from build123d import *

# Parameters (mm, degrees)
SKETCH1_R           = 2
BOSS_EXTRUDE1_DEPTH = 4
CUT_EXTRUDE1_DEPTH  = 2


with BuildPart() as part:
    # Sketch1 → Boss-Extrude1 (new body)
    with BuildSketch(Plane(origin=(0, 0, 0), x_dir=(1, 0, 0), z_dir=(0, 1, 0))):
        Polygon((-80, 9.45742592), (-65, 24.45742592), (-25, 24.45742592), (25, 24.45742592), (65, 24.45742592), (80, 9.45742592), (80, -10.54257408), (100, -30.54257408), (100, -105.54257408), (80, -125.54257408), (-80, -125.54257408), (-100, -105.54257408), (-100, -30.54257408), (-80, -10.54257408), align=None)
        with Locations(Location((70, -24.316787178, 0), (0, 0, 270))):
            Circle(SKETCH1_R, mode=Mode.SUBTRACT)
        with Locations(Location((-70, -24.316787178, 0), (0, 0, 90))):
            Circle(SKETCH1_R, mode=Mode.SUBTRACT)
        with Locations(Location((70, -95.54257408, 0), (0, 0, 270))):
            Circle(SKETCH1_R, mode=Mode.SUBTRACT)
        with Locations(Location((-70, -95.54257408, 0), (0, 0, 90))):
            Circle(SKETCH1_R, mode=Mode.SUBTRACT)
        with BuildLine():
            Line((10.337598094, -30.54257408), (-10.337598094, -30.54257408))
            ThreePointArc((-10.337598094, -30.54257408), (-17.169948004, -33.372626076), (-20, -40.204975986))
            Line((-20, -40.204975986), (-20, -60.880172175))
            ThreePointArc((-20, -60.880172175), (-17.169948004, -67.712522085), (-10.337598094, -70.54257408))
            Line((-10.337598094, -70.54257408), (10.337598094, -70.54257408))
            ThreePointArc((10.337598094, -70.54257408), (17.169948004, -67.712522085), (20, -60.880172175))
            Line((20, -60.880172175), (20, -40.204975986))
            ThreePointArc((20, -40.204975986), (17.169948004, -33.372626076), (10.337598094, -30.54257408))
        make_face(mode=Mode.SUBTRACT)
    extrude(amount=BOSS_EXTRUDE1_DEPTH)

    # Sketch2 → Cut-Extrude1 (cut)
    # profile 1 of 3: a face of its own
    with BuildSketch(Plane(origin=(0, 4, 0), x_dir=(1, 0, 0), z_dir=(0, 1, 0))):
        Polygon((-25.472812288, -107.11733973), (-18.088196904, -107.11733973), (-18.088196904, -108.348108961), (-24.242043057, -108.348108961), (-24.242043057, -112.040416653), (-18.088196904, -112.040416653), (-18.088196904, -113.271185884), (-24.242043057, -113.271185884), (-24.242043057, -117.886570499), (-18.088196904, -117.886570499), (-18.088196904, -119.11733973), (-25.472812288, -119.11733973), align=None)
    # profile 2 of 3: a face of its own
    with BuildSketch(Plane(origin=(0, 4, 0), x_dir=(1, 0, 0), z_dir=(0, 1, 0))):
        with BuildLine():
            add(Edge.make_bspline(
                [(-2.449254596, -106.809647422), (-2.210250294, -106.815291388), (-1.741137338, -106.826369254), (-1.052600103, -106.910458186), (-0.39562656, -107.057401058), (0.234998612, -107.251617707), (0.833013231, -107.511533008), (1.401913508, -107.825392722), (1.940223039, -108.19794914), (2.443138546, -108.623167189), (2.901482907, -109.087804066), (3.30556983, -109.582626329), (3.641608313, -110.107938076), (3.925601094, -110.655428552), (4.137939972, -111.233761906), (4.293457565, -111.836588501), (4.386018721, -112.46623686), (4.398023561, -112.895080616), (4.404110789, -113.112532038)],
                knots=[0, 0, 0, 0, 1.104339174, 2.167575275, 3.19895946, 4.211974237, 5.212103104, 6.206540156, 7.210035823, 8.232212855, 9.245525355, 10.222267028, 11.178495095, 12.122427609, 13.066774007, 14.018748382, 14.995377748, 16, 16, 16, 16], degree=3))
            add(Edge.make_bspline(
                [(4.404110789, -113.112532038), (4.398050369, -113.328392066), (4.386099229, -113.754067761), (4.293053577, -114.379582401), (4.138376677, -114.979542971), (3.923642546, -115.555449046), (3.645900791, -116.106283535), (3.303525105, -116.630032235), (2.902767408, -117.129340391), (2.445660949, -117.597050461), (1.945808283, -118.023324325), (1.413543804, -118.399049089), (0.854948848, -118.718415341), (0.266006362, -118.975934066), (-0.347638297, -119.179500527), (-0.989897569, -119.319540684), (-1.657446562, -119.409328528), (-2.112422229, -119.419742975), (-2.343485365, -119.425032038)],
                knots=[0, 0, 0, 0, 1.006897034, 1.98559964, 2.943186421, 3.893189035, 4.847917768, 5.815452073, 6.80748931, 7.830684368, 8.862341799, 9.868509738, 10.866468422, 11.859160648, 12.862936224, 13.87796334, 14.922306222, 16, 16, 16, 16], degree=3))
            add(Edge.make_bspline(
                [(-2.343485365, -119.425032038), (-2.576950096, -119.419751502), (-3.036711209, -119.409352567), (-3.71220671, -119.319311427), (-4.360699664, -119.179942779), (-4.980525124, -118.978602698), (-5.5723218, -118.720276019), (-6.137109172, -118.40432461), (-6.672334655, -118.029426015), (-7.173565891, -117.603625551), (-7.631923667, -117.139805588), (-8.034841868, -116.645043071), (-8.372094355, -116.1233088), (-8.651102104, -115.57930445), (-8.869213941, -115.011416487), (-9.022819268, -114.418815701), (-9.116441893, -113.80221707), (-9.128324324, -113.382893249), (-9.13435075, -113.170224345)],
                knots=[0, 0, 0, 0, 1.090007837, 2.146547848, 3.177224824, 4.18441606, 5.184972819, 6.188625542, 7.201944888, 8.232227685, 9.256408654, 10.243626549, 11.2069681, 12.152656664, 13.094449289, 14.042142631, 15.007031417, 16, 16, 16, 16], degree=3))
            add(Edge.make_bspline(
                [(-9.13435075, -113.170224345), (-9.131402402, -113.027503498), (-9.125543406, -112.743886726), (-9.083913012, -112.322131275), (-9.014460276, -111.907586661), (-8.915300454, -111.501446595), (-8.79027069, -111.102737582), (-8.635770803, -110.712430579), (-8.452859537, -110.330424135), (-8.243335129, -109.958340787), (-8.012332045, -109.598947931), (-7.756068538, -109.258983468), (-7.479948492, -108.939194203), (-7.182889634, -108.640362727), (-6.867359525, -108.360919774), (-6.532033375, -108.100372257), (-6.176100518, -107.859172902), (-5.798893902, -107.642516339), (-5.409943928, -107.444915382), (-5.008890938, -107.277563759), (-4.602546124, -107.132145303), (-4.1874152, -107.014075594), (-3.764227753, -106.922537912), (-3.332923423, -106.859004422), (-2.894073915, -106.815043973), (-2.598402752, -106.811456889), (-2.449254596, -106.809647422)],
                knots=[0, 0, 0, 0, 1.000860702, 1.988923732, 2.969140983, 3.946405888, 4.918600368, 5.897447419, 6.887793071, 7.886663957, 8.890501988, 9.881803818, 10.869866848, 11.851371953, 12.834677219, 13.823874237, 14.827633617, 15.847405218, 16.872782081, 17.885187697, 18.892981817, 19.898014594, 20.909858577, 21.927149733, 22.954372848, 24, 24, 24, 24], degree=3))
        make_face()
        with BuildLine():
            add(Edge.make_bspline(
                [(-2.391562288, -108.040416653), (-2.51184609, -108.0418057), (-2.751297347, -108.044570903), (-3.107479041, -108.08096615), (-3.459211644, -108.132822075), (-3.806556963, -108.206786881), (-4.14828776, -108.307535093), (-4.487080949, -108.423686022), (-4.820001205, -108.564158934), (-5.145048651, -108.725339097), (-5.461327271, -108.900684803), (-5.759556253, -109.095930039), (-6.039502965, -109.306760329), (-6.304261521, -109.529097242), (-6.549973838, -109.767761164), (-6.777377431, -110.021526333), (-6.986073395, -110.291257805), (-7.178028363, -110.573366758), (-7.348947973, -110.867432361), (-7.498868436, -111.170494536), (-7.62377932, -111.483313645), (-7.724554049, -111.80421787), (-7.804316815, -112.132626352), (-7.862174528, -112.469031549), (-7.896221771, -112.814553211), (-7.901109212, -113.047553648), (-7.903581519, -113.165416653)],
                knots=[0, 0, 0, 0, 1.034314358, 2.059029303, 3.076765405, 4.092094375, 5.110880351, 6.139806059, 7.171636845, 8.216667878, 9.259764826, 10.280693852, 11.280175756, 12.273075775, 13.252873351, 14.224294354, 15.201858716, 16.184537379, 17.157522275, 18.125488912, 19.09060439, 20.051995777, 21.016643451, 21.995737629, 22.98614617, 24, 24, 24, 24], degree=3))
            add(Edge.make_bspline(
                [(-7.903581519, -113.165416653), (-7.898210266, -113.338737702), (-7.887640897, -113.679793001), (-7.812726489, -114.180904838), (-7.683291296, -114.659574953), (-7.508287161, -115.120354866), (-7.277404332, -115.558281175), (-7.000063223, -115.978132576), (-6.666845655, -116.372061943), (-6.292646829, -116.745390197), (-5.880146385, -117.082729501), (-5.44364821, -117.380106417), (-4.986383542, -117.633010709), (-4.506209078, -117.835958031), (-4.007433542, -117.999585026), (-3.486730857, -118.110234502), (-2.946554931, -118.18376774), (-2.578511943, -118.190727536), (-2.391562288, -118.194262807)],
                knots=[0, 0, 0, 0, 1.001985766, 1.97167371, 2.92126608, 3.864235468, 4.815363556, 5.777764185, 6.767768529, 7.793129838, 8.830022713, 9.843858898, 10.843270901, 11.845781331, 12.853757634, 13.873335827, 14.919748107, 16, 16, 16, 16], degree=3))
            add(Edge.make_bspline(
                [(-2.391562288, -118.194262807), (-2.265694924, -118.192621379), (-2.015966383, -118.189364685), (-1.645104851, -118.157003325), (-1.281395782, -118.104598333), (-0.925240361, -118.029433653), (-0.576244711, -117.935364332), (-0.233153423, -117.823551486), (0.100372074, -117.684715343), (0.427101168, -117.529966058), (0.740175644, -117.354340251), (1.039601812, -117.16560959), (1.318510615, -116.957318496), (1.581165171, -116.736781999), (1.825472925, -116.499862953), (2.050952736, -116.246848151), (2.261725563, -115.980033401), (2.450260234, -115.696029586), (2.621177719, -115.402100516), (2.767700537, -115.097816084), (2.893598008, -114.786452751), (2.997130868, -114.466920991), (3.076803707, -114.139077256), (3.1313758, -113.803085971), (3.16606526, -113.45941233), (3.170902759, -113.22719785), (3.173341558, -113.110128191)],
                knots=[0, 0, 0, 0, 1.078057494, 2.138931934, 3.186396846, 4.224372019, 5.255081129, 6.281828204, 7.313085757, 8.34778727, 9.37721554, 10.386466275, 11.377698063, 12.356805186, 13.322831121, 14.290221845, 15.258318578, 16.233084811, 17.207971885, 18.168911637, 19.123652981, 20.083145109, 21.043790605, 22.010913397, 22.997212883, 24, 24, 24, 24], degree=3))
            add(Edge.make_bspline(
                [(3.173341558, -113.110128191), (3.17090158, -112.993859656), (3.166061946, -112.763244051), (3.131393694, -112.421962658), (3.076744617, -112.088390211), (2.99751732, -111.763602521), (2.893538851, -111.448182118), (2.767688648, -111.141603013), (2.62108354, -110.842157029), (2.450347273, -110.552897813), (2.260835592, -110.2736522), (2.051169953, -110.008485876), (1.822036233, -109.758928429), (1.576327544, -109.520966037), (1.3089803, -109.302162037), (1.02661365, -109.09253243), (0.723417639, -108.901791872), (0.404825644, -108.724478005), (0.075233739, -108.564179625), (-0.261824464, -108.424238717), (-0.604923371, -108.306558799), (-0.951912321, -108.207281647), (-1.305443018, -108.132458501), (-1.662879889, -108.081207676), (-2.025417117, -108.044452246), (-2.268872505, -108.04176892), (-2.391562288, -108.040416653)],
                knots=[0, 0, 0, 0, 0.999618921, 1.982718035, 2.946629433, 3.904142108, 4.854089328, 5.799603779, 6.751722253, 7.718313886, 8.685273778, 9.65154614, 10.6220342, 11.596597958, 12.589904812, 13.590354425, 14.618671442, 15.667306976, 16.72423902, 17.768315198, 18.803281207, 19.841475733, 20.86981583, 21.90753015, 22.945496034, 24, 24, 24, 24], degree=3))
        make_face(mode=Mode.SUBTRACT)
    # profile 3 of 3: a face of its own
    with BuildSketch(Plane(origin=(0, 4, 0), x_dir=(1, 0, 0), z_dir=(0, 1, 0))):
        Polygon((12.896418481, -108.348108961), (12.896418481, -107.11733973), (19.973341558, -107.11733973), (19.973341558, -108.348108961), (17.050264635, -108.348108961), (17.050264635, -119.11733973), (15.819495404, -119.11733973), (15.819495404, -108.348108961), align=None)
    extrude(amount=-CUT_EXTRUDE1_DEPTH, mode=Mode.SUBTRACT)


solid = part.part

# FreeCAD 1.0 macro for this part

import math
import FreeCAD as App
import Part
import Sketcher

V = App.Vector


def add_polygon(sketch, points):
    """Adds a closed chain of lines whose ends are joined by coincident constraints."""
    first, n = sketch.GeometryCount, len(points)
    for a, b in zip(points, points[1:] + points[:1]):
        sketch.addGeometry(Part.LineSegment(App.Vector(*a, 0), App.Vector(*b, 0)), False)
    for i in range(n):
        sketch.addConstraint(Sketcher.Constraint("Coincident", first + i, 2, first + (i + 1) % n, 1))

doc = App.newDocument("Part")
body = doc.addObject("PartDesign::Body", "Body")

# Sketch on XZ plane
sketch1 = body.newObject("Sketcher::SketchObject", "Sketch")
sketch1.AttachmentSupport = (doc.getObject("XZ_Plane"), [""])
sketch1.MapMode = "FlatFace"
add_polygon(sketch1, [(-65, -24.5), (-80, -9.5), (-80, 10.5), (-100, 30.5), (-100, 105.5), (-80, 125.5), (80, 125.5), (100, 105.5), (100, 30.5), (80, 10.5), (80, -9.5), (65, -24.5)])  # lines 0-11
sketch1.addGeometry(Part.Circle(V(70, 95.5, 0), V(0, 0, 1), 2), False)  # 12
sketch1.addGeometry(Part.Circle(V(-70, 95.5, 0), V(0, 0, 1), 2), False)  # 13
sketch1.addGeometry(Part.Circle(V(70, 24.3, 0), V(0, 0, 1), 2), False)  # 14
sketch1.addGeometry(Part.ArcOfCircle(Part.Circle(V(10.3, 40.2, 0), V(0, 0, 1), 9.7), math.radians(-90), math.radians(0)), False)  # 15
sketch1.addGeometry(Part.LineSegment(V(20, 40.2, 0), V(20, 60.9, 0)), False)  # 16
sketch1.addGeometry(Part.ArcOfCircle(Part.Circle(V(10.3, 60.9, 0), V(0, 0, 1), 9.7), math.radians(0), math.radians(90)), False)  # 17
sketch1.addGeometry(Part.LineSegment(V(10.3, 70.5, 0), V(-10.3, 70.5, 0)), False)  # 18
sketch1.addGeometry(Part.ArcOfCircle(Part.Circle(V(-10.3, 60.9, 0), V(0, 0, 1), 9.7), math.radians(90), math.radians(180)), False)  # 19
sketch1.addGeometry(Part.LineSegment(V(-20, 60.9, 0), V(-20, 40.2, 0)), False)  # 20
sketch1.addGeometry(Part.ArcOfCircle(Part.Circle(V(-10.3, 40.2, 0), V(0, 0, 1), 9.7), math.radians(-180), math.radians(-90)), False)  # 21
sketch1.addGeometry(Part.LineSegment(V(-10.3, 30.5, 0), V(10.3, 30.5, 0)), False)  # 22
sketch1.addGeometry(Part.Circle(V(-70, 24.3, 0), V(0, 0, 1), 2), False)  # 23
sketch1.addConstraint([
    Sketcher.Constraint("Tangent", 15, 2, 16, 1),
    Sketcher.Constraint("Tangent", 16, 2, 17, 1),
    Sketcher.Constraint("Tangent", 17, 2, 18, 1),
    Sketcher.Constraint("Tangent", 18, 2, 19, 1),
    Sketcher.Constraint("Tangent", 19, 2, 20, 1),
    Sketcher.Constraint("Tangent", 20, 2, 21, 1),
    Sketcher.Constraint("Tangent", 21, 2, 22, 1),
    Sketcher.Constraint("Tangent", 22, 2, 15, 1),
    Sketcher.Constraint("Vertical", 1),
    Sketcher.Constraint("Vertical", 3),
    Sketcher.Constraint("Horizontal", 5),
    Sketcher.Constraint("Vertical", 7),
    Sketcher.Constraint("Vertical", 9),
    Sketcher.Constraint("Horizontal", 11),
    Sketcher.Constraint("Vertical", 16),
    Sketcher.Constraint("Horizontal", 18),
    Sketcher.Constraint("Vertical", 20),
    Sketcher.Constraint("Horizontal", 22),
    Sketcher.Constraint("Equal", 12, 13),
    Sketcher.Constraint("Equal", 13, 14),
    Sketcher.Constraint("Equal", 15, 17),
    Sketcher.Constraint("Equal", 17, 19),
    Sketcher.Constraint("Equal", 19, 21),
    Sketcher.Constraint("Equal", 14, 23),
    Sketcher.Constraint("Symmetric", 12, 3, 13, 3, -2),
    Sketcher.Constraint("Symmetric", 14, 3, 23, 3, -2),
    Sketcher.Constraint("Symmetric", 3, 2, 6, 2, -2),
    Sketcher.Constraint("Symmetric", 1, 2, 8, 2, -2),
    Sketcher.Constraint("Parallel", 0, 2),
    Sketcher.Constraint("Perpendicular", 2, 4),
    Sketcher.Constraint("Perpendicular", 4, 6),
    Sketcher.Constraint("Perpendicular", 6, 8),
    Sketcher.Constraint("Parallel", 8, 10),
    Sketcher.Constraint("Horizontal", 2, 2, 7, 2),
    Sketcher.Constraint("Horizontal", 0, 2, 9, 2),
    Sketcher.Constraint("Horizontal", 7, 2, 21, 2),
    Sketcher.Constraint("Vertical", 12, 3, 14, 3),
    Sketcher.Constraint("Vertical", 1, 2, 4, 2),
    Sketcher.Constraint("Equal", 22, 16),
    Sketcher.Constraint("Diameter", 12, 4.0),
    Sketcher.Constraint("DistanceX", 5, 1, 5, 2, 160.0),
    Sketcher.Constraint("DistanceX", 11, 2, 11, 1, 130.0),
    Sketcher.Constraint("DistanceY", 1, 1, 1, 2, 20.0),
    Sketcher.Constraint("DistanceY", 3, 1, 3, 2, 75.0),
    Sketcher.Constraint("DistanceX", -1, 1, 12, 3, 70.0),
    Sketcher.Constraint("DistanceX", 2, 2, -1, 1, 100.0),
    Sketcher.Constraint("DistanceX", -1, 1, 15, 2, 20.0),
    Sketcher.Constraint("DistanceX", 19, 2, -1, 1, 20.0),
    Sketcher.Constraint("DistanceY", 0, 2, 13, 3, 105.0),
    Sketcher.Constraint("Radius", 15, 9.662402),
    Sketcher.Constraint("DistanceY", 14, 3, 15, 3, 15.888189),
    Sketcher.Constraint("DistanceY", -1, 1, 12, 3, 95.542574),
])
pad1 = body.newObject("PartDesign::Pad", "Pad")
pad1.Profile = sketch1
pad1.Length = 4
pad1.Reversed = True

# Sketch on XZ plane
sketch2 = body.newObject("Sketcher::SketchObject", "Sketch001")
sketch2.AttachmentSupport = (doc.getObject("XZ_Plane"), [""])
sketch2.MapMode = "FlatFace"
sketch2.AttachmentOffset = App.Placement(V(0, 0, -4), App.Rotation())
add_polygon(sketch2, [(-18.088197, 107.11734), (-25.472812, 107.11734), (-25.472812, 119.11734), (-18.088197, 119.11734), (-18.088197, 117.88657), (-24.242043, 117.88657), (-24.242043, 113.271186), (-18.088197, 113.271186), (-18.088197, 112.040417), (-24.242043, 112.040417), (-24.242043, 108.348109), (-18.088197, 108.348109)])  # lines 0-11
sketch2.addGeometry(Part.BSplineCurve([V(-2.449255, 106.809647, 0), V(-2.21025, 106.815291, 0), V(-1.741137, 106.826369, 0), V(-1.0526, 106.910458, 0), V(-0.395627, 107.057401, 0), V(0.234999, 107.251618, 0), V(0.833013, 107.511533, 0), V(1.401914, 107.825393, 0), V(1.940223, 108.197949, 0), V(2.443139, 108.623167, 0), V(2.901483, 109.087804, 0), V(3.30557, 109.582626, 0), V(3.641608, 110.107938, 0), V(3.925601, 110.655429, 0), V(4.13794, 111.233762, 0), V(4.293458, 111.836589, 0), V(4.386019, 112.466237, 0), V(4.398024, 112.895081, 0), V(4.404111, 113.112532, 0)], [4, 1, 1, 1, 1, 1, 1, 1, 1, 1, 1, 1, 1, 1, 1, 1, 4], [0, 1.104339174, 2.167575275, 3.19895946, 4.211974237, 5.212103104, 6.206540156, 7.210035823, 8.232212855, 9.245525355, 10.222267028, 11.178495095, 12.122427609, 13.066774007, 14.018748382, 14.995377748, 16], False, 3, [1, 1, 1, 1, 1, 1, 1, 1, 1, 1, 1, 1, 1, 1, 1, 1, 1, 1, 1], False), False)  # 12
sketch2.addGeometry(Part.BSplineCurve([V(-9.134351, 113.170224, 0), V(-9.131402, 113.027503, 0), V(-9.125543, 112.743887, 0), V(-9.083913, 112.322131, 0), V(-9.01446, 111.907587, 0), V(-8.9153, 111.501447, 0), V(-8.790271, 111.102738, 0), V(-8.635771, 110.712431, 0), V(-8.45286, 110.330424, 0), V(-8.243335, 109.958341, 0), V(-8.012332, 109.598948, 0), V(-7.756069, 109.258983, 0), V(-7.479948, 108.939194, 0), V(-7.18289, 108.640363, 0), V(-6.86736, 108.36092, 0), V(-6.532033, 108.100372, 0), V(-6.176101, 107.859173, 0), V(-5.798894, 107.642516, 0), V(-5.409944, 107.444915, 0), V(-5.008891, 107.277564, 0), V(-4.602546, 107.132145, 0), V(-4.187415, 107.014076, 0), V(-3.764228, 106.922538, 0), V(-3.332923, 106.859004, 0), V(-2.894074, 106.815044, 0), V(-2.598403, 106.811457, 0), V(-2.449255, 106.809647, 0)], [4, 1, 1, 1, 1, 1, 1, 1, 1, 1, 1, 1, 1, 1, 1, 1, 1, 1, 1, 1, 1, 1, 1, 1, 4], [0, 1.000860702, 1.988923732, 2.969140983, 3.946405888, 4.918600368, 5.897447419, 6.887793071, 7.886663957, 8.890501988, 9.881803818, 10.869866848, 11.851371953, 12.834677219, 13.823874237, 14.827633617, 15.847405218, 16.872782081, 17.885187697, 18.892981817, 19.898014594, 20.909858577, 21.927149733, 22.954372848, 24], False, 3, [1, 1, 1, 1, 1, 1, 1, 1, 1, 1, 1, 1, 1, 1, 1, 1, 1, 1, 1, 1, 1, 1, 1, 1, 1, 1, 1], False), False)  # 13
sketch2.addGeometry(Part.BSplineCurve([V(-2.343485, 119.425032, 0), V(-2.57695, 119.419752, 0), V(-3.036711, 119.409353, 0), V(-3.712207, 119.319311, 0), V(-4.3607, 119.179943, 0), V(-4.980525, 118.978603, 0), V(-5.572322, 118.720276, 0), V(-6.137109, 118.404325, 0), V(-6.672335, 118.029426, 0), V(-7.173566, 117.603626, 0), V(-7.631924, 117.139806, 0), V(-8.034842, 116.645043, 0), V(-8.372094, 116.123309, 0), V(-8.651102, 115.579304, 0), V(-8.869214, 115.011416, 0), V(-9.022819, 114.418816, 0), V(-9.116442, 113.802217, 0), V(-9.128324, 113.382893, 0), V(-9.134351, 113.170224, 0)], [4, 1, 1, 1, 1, 1, 1, 1, 1, 1, 1, 1, 1, 1, 1, 1, 4], [0, 1.090007837, 2.146547848, 3.177224824, 4.18441606, 5.184972819, 6.188625542, 7.201944888, 8.232227685, 9.256408654, 10.243626549, 11.2069681, 12.152656664, 13.094449289, 14.042142631, 15.007031417, 16], False, 3, [1, 1, 1, 1, 1, 1, 1, 1, 1, 1, 1, 1, 1, 1, 1, 1, 1, 1, 1], False), False)  # 14
sketch2.addGeometry(Part.BSplineCurve([V(4.404111, 113.112532, 0), V(4.39805, 113.328392, 0), V(4.386099, 113.754068, 0), V(4.293054, 114.379582, 0), V(4.138377, 114.979543, 0), V(3.923643, 115.555449, 0), V(3.645901, 116.106284, 0), V(3.303525, 116.630032, 0), V(2.902767, 117.12934, 0), V(2.445661, 117.59705, 0), V(1.945808, 118.023324, 0), V(1.413544, 118.399049, 0), V(0.854949, 118.718415, 0), V(0.266006, 118.975934, 0), V(-0.347638, 119.179501, 0), V(-0.989898, 119.319541, 0), V(-1.657447, 119.409329, 0), V(-2.112422, 119.419743, 0), V(-2.343485, 119.425032, 0)], [4, 1, 1, 1, 1, 1, 1, 1, 1, 1, 1, 1, 1, 1, 1, 1, 4], [0, 1.006897034, 1.98559964, 2.943186421, 3.893189035, 4.847917768, 5.815452073, 6.80748931, 7.830684368, 8.862341799, 9.868509738, 10.866468422, 11.859160648, 12.862936224, 13.87796334, 14.922306222, 16], False, 3, [1, 1, 1, 1, 1, 1, 1, 1, 1, 1, 1, 1, 1, 1, 1, 1, 1, 1, 1], False), False)  # 15
sketch2.addGeometry(Part.BSplineCurve([V(3.173342, 113.110128, 0), V(3.170902, 112.99386, 0), V(3.166062, 112.763244, 0), V(3.131394, 112.421963, 0), V(3.076745, 112.08839, 0), V(2.997517, 111.763603, 0), V(2.893539, 111.448182, 0), V(2.767689, 111.141603, 0), V(2.621084, 110.842157, 0), V(2.450347, 110.552898, 0), V(2.260836, 110.273652, 0), V(2.05117, 110.008486, 0), V(1.822036, 109.758928, 0), V(1.576328, 109.520966, 0), V(1.30898, 109.302162, 0), V(1.026614, 109.092532, 0), V(0.723418, 108.901792, 0), V(0.404826, 108.724478, 0), V(0.075234, 108.56418, 0), V(-0.261824, 108.424239, 0), V(-0.604923, 108.306559, 0), V(-0.951912, 108.207282, 0), V(-1.305443, 108.132459, 0), V(-1.66288, 108.081208, 0), V(-2.025417, 108.044452, 0), V(-2.268873, 108.041769, 0), V(-2.391562, 108.040417, 0)], [4, 1, 1, 1, 1, 1, 1, 1, 1, 1, 1, 1, 1, 1, 1, 1, 1, 1, 1, 1, 1, 1, 1, 1, 4], [0, 0.999618921, 1.982718035, 2.946629433, 3.904142108, 4.854089328, 5.799603779, 6.751722253, 7.718313886, 8.685273778, 9.65154614, 10.6220342, 11.596597958, 12.589904812, 13.590354425, 14.618671442, 15.667306976, 16.72423902, 17.768315198, 18.803281207, 19.841475733, 20.86981583, 21.90753015, 22.945496034, 24], False, 3, [1, 1, 1, 1, 1, 1, 1, 1, 1, 1, 1, 1, 1, 1, 1, 1, 1, 1, 1, 1, 1, 1, 1, 1, 1, 1, 1], False), False)  # 16
sketch2.addGeometry(Part.BSplineCurve([V(-2.391562, 118.194263, 0), V(-2.265695, 118.192621, 0), V(-2.015966, 118.189365, 0), V(-1.645105, 118.157003, 0), V(-1.281396, 118.104598, 0), V(-0.92524, 118.029434, 0), V(-0.576245, 117.935364, 0), V(-0.233153, 117.823551, 0), V(0.100372, 117.684715, 0), V(0.427101, 117.529966, 0), V(0.740176, 117.35434, 0), V(1.039602, 117.16561, 0), V(1.318511, 116.957318, 0), V(1.581165, 116.736782, 0), V(1.825473, 116.499863, 0), V(2.050953, 116.246848, 0), V(2.261726, 115.980033, 0), V(2.45026, 115.69603, 0), V(2.621178, 115.402101, 0), V(2.767701, 115.097816, 0), V(2.893598, 114.786453, 0), V(2.997131, 114.466921, 0), V(3.076804, 114.139077, 0), V(3.131376, 113.803086, 0), V(3.166065, 113.459412, 0), V(3.170903, 113.227198, 0), V(3.173342, 113.110128, 0)], [4, 1, 1, 1, 1, 1, 1, 1, 1, 1, 1, 1, 1, 1, 1, 1, 1, 1, 1, 1, 1, 1, 1, 1, 4], [0, 1.078057494, 2.138931934, 3.186396846, 4.224372019, 5.255081129, 6.281828204, 7.313085757, 8.34778727, 9.37721554, 10.386466275, 11.377698063, 12.356805186, 13.322831121, 14.290221845, 15.258318578, 16.233084811, 17.207971885, 18.168911637, 19.123652981, 20.083145109, 21.043790605, 22.010913397, 22.997212883, 24], False, 3, [1, 1, 1, 1, 1, 1, 1, 1, 1, 1, 1, 1, 1, 1, 1, 1, 1, 1, 1, 1, 1, 1, 1, 1, 1, 1, 1], False), False)  # 17
sketch2.addGeometry(Part.BSplineCurve([V(-7.903582, 113.165417, 0), V(-7.89821, 113.338738, 0), V(-7.887641, 113.679793, 0), V(-7.812726, 114.180905, 0), V(-7.683291, 114.659575, 0), V(-7.508287, 115.120355, 0), V(-7.277404, 115.558281, 0), V(-7.000063, 115.978133, 0), V(-6.666846, 116.372062, 0), V(-6.292647, 116.74539, 0), V(-5.880146, 117.08273, 0), V(-5.443648, 117.380106, 0), V(-4.986384, 117.633011, 0), V(-4.506209, 117.835958, 0), V(-4.007434, 117.999585, 0), V(-3.486731, 118.110235, 0), V(-2.946555, 118.183768, 0), V(-2.578512, 118.190728, 0), V(-2.391562, 118.194263, 0)], [4, 1, 1, 1, 1, 1, 1, 1, 1, 1, 1, 1, 1, 1, 1, 1, 4], [0, 1.001985766, 1.97167371, 2.92126608, 3.864235468, 4.815363556, 5.777764185, 6.767768529, 7.793129838, 8.830022713, 9.843858898, 10.843270901, 11.845781331, 12.853757634, 13.873335827, 14.919748107, 16], False, 3, [1, 1, 1, 1, 1, 1, 1, 1, 1, 1, 1, 1, 1, 1, 1, 1, 1, 1, 1], False), False)  # 18
sketch2.addGeometry(Part.BSplineCurve([V(-2.391562, 108.040417, 0), V(-2.511846, 108.041806, 0), V(-2.751297, 108.044571, 0), V(-3.107479, 108.080966, 0), V(-3.459212, 108.132822, 0), V(-3.806557, 108.206787, 0), V(-4.148288, 108.307535, 0), V(-4.487081, 108.423686, 0), V(-4.820001, 108.564159, 0), V(-5.145049, 108.725339, 0), V(-5.461327, 108.900685, 0), V(-5.759556, 109.09593, 0), V(-6.039503, 109.30676, 0), V(-6.304262, 109.529097, 0), V(-6.549974, 109.767761, 0), V(-6.777377, 110.021526, 0), V(-6.986073, 110.291258, 0), V(-7.178028, 110.573367, 0), V(-7.348948, 110.867432, 0), V(-7.498868, 111.170495, 0), V(-7.623779, 111.483314, 0), V(-7.724554, 111.804218, 0), V(-7.804317, 112.132626, 0), V(-7.862175, 112.469032, 0), V(-7.896222, 112.814553, 0), V(-7.901109, 113.047554, 0), V(-7.903582, 113.165417, 0)], [4, 1, 1, 1, 1, 1, 1, 1, 1, 1, 1, 1, 1, 1, 1, 1, 1, 1, 1, 1, 1, 1, 1, 1, 4], [0, 1.034314358, 2.059029303, 3.076765405, 4.092094375, 5.110880351, 6.139806059, 7.171636845, 8.216667878, 9.259764826, 10.280693852, 11.280175756, 12.273075775, 13.252873351, 14.224294354, 15.201858716, 16.184537379, 17.157522275, 18.125488912, 19.09060439, 20.051995777, 21.016643451, 21.995737629, 22.98614617, 24], False, 3, [1, 1, 1, 1, 1, 1, 1, 1, 1, 1, 1, 1, 1, 1, 1, 1, 1, 1, 1, 1, 1, 1, 1, 1, 1, 1, 1], False), False)  # 19
add_polygon(sketch2, [(12.896418, 107.11734), (12.896418, 108.348109), (15.819495, 108.348109), (15.819495, 119.11734), (17.050265, 119.11734), (17.050265, 108.348109), (19.973342, 108.348109), (19.973342, 107.11734)])  # lines 20-27
sketch2.addConstraint([
    Sketcher.Constraint("Block", 12),
    Sketcher.Constraint("Block", 13),
    Sketcher.Constraint("Block", 14),
    Sketcher.Constraint("Block", 15),
    Sketcher.Constraint("Block", 16),
    Sketcher.Constraint("Block", 17),
    Sketcher.Constraint("Block", 18),
    Sketcher.Constraint("Block", 19),
    Sketcher.Constraint("Horizontal", 0),
    Sketcher.Constraint("Vertical", 1),
    Sketcher.Constraint("Horizontal", 2),
    Sketcher.Constraint("Vertical", 3),
    Sketcher.Constraint("Horizontal", 4),
    Sketcher.Constraint("Vertical", 5),
    Sketcher.Constraint("Horizontal", 6),
    Sketcher.Constraint("Vertical", 7),
    Sketcher.Constraint("Horizontal", 8),
    Sketcher.Constraint("Vertical", 9),
    Sketcher.Constraint("Horizontal", 10),
    Sketcher.Constraint("Vertical", 11),
    Sketcher.Constraint("Vertical", 20),
    Sketcher.Constraint("Horizontal", 21),
    Sketcher.Constraint("Vertical", 22),
    Sketcher.Constraint("Horizontal", 23),
    Sketcher.Constraint("Vertical", 24),
    Sketcher.Constraint("Horizontal", 25),
    Sketcher.Constraint("Vertical", 26),
    Sketcher.Constraint("Horizontal", 27),
    Sketcher.Constraint("Horizontal", 10, 2, 20, 2),
    Sketcher.Constraint("Horizontal", 2, 2, 22, 2),
    Sketcher.Constraint("Horizontal", 21, 2, 24, 2),
    Sketcher.Constraint("Horizontal", 11, 2, 26, 2),
    Sketcher.Constraint("Vertical", 3, 2, 6, 2),
    Sketcher.Constraint("Vertical", 5, 2, 8, 2),
    Sketcher.Constraint("Vertical", 7, 2, 10, 2),
    Sketcher.Constraint("Equal", 21, 25),
    Sketcher.Constraint("Equal", 23, 3),
    Sketcher.Constraint("Equal", 3, 7),
    Sketcher.Constraint("Equal", 7, 11),
    Sketcher.Constraint("DistanceY", 1, 1, 1, 2, 12.0),
    Sketcher.Constraint("DistanceX", 23, 1, 23, 2, 1.230769),
    Sketcher.Constraint("DistanceX", 0, 2, 0, 1, 7.384615),
    Sketcher.Constraint("DistanceX", 4, 2, 4, 1, 6.153846),
    Sketcher.Constraint("DistanceX", 21, 1, 21, 2, 2.923077),
    Sketcher.Constraint("DistanceY", 5, 2, 5, 1, 4.615385),
    Sketcher.Constraint("DistanceY", -1, 1, 0, 2, 107.11734),
    Sketcher.Constraint("DistanceX", -1, 1, 20, 2, 12.896418),
    Sketcher.Constraint("DistanceX", 2, 2, 23, 2, 35.138462),
])
pocket1 = body.newObject("PartDesign::Pocket", "Pocket")
pocket1.Profile = sketch2
pocket1.Length = 2
pocket1.Reversed = True

doc.recompute()
